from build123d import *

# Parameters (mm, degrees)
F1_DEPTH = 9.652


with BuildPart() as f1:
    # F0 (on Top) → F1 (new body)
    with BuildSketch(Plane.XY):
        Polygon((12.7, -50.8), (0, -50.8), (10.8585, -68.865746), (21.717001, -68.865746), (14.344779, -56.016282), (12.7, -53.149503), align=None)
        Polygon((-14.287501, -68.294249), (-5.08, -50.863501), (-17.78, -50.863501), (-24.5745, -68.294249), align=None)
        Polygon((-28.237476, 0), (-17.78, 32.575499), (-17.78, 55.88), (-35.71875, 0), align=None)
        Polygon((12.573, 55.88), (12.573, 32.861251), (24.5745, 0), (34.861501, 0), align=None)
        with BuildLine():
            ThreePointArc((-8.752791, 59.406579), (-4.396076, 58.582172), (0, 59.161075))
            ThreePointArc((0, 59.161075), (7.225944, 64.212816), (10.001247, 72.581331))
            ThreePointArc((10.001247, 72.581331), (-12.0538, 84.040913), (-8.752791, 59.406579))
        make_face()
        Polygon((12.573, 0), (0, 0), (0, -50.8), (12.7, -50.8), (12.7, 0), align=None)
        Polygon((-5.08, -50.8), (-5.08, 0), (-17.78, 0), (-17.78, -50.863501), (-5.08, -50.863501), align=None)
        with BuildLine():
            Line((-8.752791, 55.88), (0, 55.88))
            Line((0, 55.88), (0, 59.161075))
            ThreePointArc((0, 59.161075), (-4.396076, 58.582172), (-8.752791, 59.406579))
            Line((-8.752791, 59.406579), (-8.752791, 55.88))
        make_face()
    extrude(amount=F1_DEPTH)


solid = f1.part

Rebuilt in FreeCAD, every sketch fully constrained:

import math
import FreeCAD as App
import Part
import Sketcher

V = App.Vector
Q = App.Units.Quantity

doc = App.newDocument("Part")
params = doc.addObject("Spreadsheet::Sheet", "Params")
for row, (alias, value) in enumerate([
    ("sketch1_height", "2 in"),
    ("sketch1_width", "0.5 in"),
    ("sketch1_width2", "0.405 in"),
    ("sketch1_height2", "0.90625 in"),
    ("pad1_length", "0.38 in"),
], start=1):
    params.set(f"A{row}", alias)
    params.set(f"B{row}", "=" + value)
    params.setAlias(f"B{row}", alias)

body = doc.addObject("PartDesign::Body", "Body")
body.AllowCompound = True

sketch1 = body.newObject("Sketcher::SketchObject", "Sketch")
sketch1.AttachmentSupport = (doc.getObject("XY_Plane"), [""])
sketch1.MapMode = "FlatFace"
sketch1.addGeometry([
    Part.LineSegment(V(0, -50.8, 0), V(10.8585, -68.865746, 0)),
    Part.LineSegment(V(10.8585, -68.865746, 0), V(21.717001, -68.865746, 0)),
    Part.LineSegment(V(21.717001, -68.865746, 0), V(14.344779, -56.016282, 0)),
    Part.LineSegment(V(14.344779, -56.016282, 0), V(12.7, -53.149503, 0)),
    Part.LineSegment(V(12.7, -53.149503, 0), V(12.7, 0, 0)),
    Part.LineSegment(V(12.7, 0, 0), V(0, 0, 0)),
    Part.LineSegment(V(0, 0, 0), V(0, -50.8, 0)),
    Part.LineSegment(V(-14.287501, -68.294249, 0), V(-5.08, -50.863501, 0)),
    Part.LineSegment(V(-5.08, -50.863501, 0), V(-5.08, 0, 0)),
    Part.LineSegment(V(-5.08, 0, 0), V(-17.78, 0, 0)),
    Part.LineSegment(V(-17.78, 0, 0), V(-17.78, -50.863501, 0)),
    Part.LineSegment(V(-17.78, -50.863501, 0), V(-24.5745, -68.294249, 0)),
    Part.LineSegment(V(-24.5745, -68.294249, 0), V(-14.287501, -68.294249, 0)),
    Part.LineSegment(V(-28.237476, 0, 0), V(-17.78, 32.575499, 0)),
    Part.LineSegment(V(-17.78, 32.575499, 0), V(-17.78, 55.88, 0)),
    Part.LineSegment(V(-17.78, 55.88, 0), V(-35.71875, 0, 0)),
    Part.LineSegment(V(-35.71875, 0, 0), V(-28.237476, 0, 0)),
    Part.LineSegment(V(12.573, 55.88, 0), V(12.573, 32.861251, 0)),
    Part.LineSegment(V(12.573, 32.861251, 0), V(24.5745, 0, 0)),
    Part.LineSegment(V(24.5745, 0, 0), V(34.861501, 0, 0)),
    Part.LineSegment(V(34.861501, 0, 0), V(12.573, 55.88, 0)),
    Part.ArcOfCircle(Part.Circle(V(-4.003421, 72.581334, 0), V(0, 0, 1), 14.004668), math.radians(-73.38954), math.radians(-0.00001)),
    Part.ArcOfCircle(Part.Circle(V(-4.003418, 72.581332, 0), V(0, 0, 1), 14.004665), math.radians(-0.000003), math.radians(250.17625)),
    Part.LineSegment(V(-8.752791, 59.406579, 0), V(-8.752791, 55.88, 0)),
    Part.LineSegment(V(-8.752791, 55.88, 0), V(0, 55.88, 0)),
    Part.LineSegment(V(0, 55.88, 0), V(0, 59.161075, 0)),
], False)
sketch1.addConstraint([
    Sketcher.Constraint("Coincident", 0, 2, 1, 1),
    Sketcher.Constraint("Coincident", 1, 2, 2, 1),
    Sketcher.Constraint("Coincident", 2, 2, 3, 1),
    Sketcher.Constraint("Coincident", 3, 2, 4, 1),
    Sketcher.Constraint("Coincident", 4, 2, 5, 1),
    Sketcher.Constraint("Coincident", 5, 2, 6, 1),
    Sketcher.Constraint("Coincident", 6, 2, 0, 1),
    Sketcher.Constraint("Coincident", 7, 2, 8, 1),
    Sketcher.Constraint("Coincident", 8, 2, 9, 1),
    Sketcher.Constraint("Coincident", 9, 2, 10, 1),
    Sketcher.Constraint("Coincident", 10, 2, 11, 1),
    Sketcher.Constraint("Coincident", 11, 2, 12, 1),
    Sketcher.Constraint("Coincident", 12, 2, 7, 1),
    Sketcher.Constraint("Coincident", 13, 2, 14, 1),
    Sketcher.Constraint("Coincident", 14, 2, 15, 1),
    Sketcher.Constraint("Coincident", 15, 2, 16, 1),
    Sketcher.Constraint("Coincident", 16, 2, 13, 1),
    Sketcher.Constraint("Coincident", 17, 2, 18, 1),
    Sketcher.Constraint("Coincident", 18, 2, 19, 1),
    Sketcher.Constraint("Coincident", 19, 2, 20, 1),
    Sketcher.Constraint("Coincident", 20, 2, 17, 1),
    Sketcher.Constraint("Tangent", 21, 2, 22, 1),
    Sketcher.Constraint("Coincident", 22, 2, 23, 1),
    Sketcher.Constraint("Coincident", 23, 2, 24, 1),
    Sketcher.Constraint("Coincident", 24, 2, 25, 1),
    Sketcher.Constraint("Coincident", 25, 2, 21, 1),
    Sketcher.Constraint("Horizontal", 1),
    Sketcher.Constraint("Vertical", 4),
    Sketcher.Constraint("Horizontal", 5),
    Sketcher.Constraint("Vertical", 6),
    Sketcher.Constraint("Vertical", 8),
    Sketcher.Constraint("Horizontal", 9),
    Sketcher.Constraint("Vertical", 10),
    Sketcher.Constraint("Horizontal", 12),
    Sketcher.Constraint("Vertical", 14),
    Sketcher.Constraint("Horizontal", 16),
    Sketcher.Constraint("Vertical", 17),
    Sketcher.Constraint("Horizontal", 19),
    Sketcher.Constraint("Vertical", 23),
    Sketcher.Constraint("Horizontal", 24),
    Sketcher.Constraint("Vertical", 25),
    Sketcher.Constraint("Coincident", 5, 2, -1, 1),
    Sketcher.Constraint("PointOnObject", 8, 2, -1),
    Sketcher.Constraint("PointOnObject", 15, 2, -1),
    Sketcher.Constraint("PointOnObject", 18, 2, -1),
    Sketcher.Constraint("PointOnObject", 24, 2, -2),
    Sketcher.Constraint("Parallel", 2, 3),
    Sketcher.Constraint("Parallel", 13, 15),
    Sketcher.Constraint("Horizontal", 7, 2, 10, 2),
    Sketcher.Constraint("Horizontal", 14, 2, 20, 2),
    Sketcher.Constraint("Horizontal", 22, 3, 21, 2),
    Sketcher.Constraint("Horizontal", 20, 2, 23, 2),
    Sketcher.Constraint("Vertical", 10, 2, 13, 2),
    Sketcher.Constraint("Equal", 5, 9),
    Sketcher.Constraint("Equal", 12, 19),
    Sketcher.Constraint("DistanceY", 6, 2, 6, 1, Q("2 in")),
    Sketcher.Constraint("DistanceX", 5, 2, 5, 1, Q("0.5 in")),
    Sketcher.Constraint("DistanceX", 7, 2, -1, 1, Q("0.2 in")),
    Sketcher.Constraint("DistanceY", -1, 1, 14, 2, Q("2.2 in")),
    Sketcher.Constraint("DistanceX", 12, 1, 12, 2, Q("0.405 in")),
    Sketcher.Constraint("DistanceY", 17, 2, 17, 1, Q("0.90625 in")),
    Sketcher.Constraint("DistanceY", 3, 2, 7, 2, Q("0.0900001 in")),
    Sketcher.Constraint("DistanceX", 12, 2, 0, 2, Q("0.99 in")),
    Sketcher.Constraint("DistanceX", 1, 1, 1, 2, Q("0.4275 in")),
    Sketcher.Constraint("DistanceY", 4, 1, 4, 2, Q("2.0925001 in")),
    Sketcher.Constraint("DistanceY", 14, 1, 14, 2, Q("0.9175 in")),
    Sketcher.Constraint("DistanceX", -1, 1, 1, 2, Q("0.855 in")),
    Sketcher.Constraint("DistanceX", 15, 2, -1, 1, Q("1.40625 in")),
    Sketcher.Constraint("DistanceX", -1, 1, 17, 2, Q("0.495 in")),
    Sketcher.Constraint("DistanceX", 14, 2, 21, 2, Q("1.0937499 in")),
    Sketcher.Constraint("DistanceX", -1, 1, 18, 2, Q("0.9675 in")),
    Sketcher.Constraint("Radius", 21, Q("14.004668 mm")),
    Sketcher.Constraint("Radius", 22, Q("14.004665 mm")),
    Sketcher.Constraint("DistanceY", 0, 2, 11, 2, Q("0.0224999 in")),
    Sketcher.Constraint("DistanceX", 24, 1, 24, 2, Q("8.752791 mm")),
    Sketcher.Constraint("DistanceY", 23, 2, 23, 1, Q("3.526579 mm")),
    Sketcher.Constraint("DistanceX", 21, 3, 2, 2, Q("18.3482 mm")),
    Sketcher.Constraint("Distance", 7, Q("19.713169 mm")),
])
sketch1.setExpression("Constraints[55]", "Params.sketch1_height")
sketch1.setExpression("Constraints[56]", "Params.sketch1_width")
sketch1.setExpression("Constraints[59]", "Params.sketch1_width2")
sketch1.setExpression("Constraints[60]", "Params.sketch1_height2")
pad1 = body.newObject("PartDesign::Pad", "Pad")
pad1.Profile = sketch1
pad1.setExpression("Length", "Params.pad1_length")

doc.recompute()
